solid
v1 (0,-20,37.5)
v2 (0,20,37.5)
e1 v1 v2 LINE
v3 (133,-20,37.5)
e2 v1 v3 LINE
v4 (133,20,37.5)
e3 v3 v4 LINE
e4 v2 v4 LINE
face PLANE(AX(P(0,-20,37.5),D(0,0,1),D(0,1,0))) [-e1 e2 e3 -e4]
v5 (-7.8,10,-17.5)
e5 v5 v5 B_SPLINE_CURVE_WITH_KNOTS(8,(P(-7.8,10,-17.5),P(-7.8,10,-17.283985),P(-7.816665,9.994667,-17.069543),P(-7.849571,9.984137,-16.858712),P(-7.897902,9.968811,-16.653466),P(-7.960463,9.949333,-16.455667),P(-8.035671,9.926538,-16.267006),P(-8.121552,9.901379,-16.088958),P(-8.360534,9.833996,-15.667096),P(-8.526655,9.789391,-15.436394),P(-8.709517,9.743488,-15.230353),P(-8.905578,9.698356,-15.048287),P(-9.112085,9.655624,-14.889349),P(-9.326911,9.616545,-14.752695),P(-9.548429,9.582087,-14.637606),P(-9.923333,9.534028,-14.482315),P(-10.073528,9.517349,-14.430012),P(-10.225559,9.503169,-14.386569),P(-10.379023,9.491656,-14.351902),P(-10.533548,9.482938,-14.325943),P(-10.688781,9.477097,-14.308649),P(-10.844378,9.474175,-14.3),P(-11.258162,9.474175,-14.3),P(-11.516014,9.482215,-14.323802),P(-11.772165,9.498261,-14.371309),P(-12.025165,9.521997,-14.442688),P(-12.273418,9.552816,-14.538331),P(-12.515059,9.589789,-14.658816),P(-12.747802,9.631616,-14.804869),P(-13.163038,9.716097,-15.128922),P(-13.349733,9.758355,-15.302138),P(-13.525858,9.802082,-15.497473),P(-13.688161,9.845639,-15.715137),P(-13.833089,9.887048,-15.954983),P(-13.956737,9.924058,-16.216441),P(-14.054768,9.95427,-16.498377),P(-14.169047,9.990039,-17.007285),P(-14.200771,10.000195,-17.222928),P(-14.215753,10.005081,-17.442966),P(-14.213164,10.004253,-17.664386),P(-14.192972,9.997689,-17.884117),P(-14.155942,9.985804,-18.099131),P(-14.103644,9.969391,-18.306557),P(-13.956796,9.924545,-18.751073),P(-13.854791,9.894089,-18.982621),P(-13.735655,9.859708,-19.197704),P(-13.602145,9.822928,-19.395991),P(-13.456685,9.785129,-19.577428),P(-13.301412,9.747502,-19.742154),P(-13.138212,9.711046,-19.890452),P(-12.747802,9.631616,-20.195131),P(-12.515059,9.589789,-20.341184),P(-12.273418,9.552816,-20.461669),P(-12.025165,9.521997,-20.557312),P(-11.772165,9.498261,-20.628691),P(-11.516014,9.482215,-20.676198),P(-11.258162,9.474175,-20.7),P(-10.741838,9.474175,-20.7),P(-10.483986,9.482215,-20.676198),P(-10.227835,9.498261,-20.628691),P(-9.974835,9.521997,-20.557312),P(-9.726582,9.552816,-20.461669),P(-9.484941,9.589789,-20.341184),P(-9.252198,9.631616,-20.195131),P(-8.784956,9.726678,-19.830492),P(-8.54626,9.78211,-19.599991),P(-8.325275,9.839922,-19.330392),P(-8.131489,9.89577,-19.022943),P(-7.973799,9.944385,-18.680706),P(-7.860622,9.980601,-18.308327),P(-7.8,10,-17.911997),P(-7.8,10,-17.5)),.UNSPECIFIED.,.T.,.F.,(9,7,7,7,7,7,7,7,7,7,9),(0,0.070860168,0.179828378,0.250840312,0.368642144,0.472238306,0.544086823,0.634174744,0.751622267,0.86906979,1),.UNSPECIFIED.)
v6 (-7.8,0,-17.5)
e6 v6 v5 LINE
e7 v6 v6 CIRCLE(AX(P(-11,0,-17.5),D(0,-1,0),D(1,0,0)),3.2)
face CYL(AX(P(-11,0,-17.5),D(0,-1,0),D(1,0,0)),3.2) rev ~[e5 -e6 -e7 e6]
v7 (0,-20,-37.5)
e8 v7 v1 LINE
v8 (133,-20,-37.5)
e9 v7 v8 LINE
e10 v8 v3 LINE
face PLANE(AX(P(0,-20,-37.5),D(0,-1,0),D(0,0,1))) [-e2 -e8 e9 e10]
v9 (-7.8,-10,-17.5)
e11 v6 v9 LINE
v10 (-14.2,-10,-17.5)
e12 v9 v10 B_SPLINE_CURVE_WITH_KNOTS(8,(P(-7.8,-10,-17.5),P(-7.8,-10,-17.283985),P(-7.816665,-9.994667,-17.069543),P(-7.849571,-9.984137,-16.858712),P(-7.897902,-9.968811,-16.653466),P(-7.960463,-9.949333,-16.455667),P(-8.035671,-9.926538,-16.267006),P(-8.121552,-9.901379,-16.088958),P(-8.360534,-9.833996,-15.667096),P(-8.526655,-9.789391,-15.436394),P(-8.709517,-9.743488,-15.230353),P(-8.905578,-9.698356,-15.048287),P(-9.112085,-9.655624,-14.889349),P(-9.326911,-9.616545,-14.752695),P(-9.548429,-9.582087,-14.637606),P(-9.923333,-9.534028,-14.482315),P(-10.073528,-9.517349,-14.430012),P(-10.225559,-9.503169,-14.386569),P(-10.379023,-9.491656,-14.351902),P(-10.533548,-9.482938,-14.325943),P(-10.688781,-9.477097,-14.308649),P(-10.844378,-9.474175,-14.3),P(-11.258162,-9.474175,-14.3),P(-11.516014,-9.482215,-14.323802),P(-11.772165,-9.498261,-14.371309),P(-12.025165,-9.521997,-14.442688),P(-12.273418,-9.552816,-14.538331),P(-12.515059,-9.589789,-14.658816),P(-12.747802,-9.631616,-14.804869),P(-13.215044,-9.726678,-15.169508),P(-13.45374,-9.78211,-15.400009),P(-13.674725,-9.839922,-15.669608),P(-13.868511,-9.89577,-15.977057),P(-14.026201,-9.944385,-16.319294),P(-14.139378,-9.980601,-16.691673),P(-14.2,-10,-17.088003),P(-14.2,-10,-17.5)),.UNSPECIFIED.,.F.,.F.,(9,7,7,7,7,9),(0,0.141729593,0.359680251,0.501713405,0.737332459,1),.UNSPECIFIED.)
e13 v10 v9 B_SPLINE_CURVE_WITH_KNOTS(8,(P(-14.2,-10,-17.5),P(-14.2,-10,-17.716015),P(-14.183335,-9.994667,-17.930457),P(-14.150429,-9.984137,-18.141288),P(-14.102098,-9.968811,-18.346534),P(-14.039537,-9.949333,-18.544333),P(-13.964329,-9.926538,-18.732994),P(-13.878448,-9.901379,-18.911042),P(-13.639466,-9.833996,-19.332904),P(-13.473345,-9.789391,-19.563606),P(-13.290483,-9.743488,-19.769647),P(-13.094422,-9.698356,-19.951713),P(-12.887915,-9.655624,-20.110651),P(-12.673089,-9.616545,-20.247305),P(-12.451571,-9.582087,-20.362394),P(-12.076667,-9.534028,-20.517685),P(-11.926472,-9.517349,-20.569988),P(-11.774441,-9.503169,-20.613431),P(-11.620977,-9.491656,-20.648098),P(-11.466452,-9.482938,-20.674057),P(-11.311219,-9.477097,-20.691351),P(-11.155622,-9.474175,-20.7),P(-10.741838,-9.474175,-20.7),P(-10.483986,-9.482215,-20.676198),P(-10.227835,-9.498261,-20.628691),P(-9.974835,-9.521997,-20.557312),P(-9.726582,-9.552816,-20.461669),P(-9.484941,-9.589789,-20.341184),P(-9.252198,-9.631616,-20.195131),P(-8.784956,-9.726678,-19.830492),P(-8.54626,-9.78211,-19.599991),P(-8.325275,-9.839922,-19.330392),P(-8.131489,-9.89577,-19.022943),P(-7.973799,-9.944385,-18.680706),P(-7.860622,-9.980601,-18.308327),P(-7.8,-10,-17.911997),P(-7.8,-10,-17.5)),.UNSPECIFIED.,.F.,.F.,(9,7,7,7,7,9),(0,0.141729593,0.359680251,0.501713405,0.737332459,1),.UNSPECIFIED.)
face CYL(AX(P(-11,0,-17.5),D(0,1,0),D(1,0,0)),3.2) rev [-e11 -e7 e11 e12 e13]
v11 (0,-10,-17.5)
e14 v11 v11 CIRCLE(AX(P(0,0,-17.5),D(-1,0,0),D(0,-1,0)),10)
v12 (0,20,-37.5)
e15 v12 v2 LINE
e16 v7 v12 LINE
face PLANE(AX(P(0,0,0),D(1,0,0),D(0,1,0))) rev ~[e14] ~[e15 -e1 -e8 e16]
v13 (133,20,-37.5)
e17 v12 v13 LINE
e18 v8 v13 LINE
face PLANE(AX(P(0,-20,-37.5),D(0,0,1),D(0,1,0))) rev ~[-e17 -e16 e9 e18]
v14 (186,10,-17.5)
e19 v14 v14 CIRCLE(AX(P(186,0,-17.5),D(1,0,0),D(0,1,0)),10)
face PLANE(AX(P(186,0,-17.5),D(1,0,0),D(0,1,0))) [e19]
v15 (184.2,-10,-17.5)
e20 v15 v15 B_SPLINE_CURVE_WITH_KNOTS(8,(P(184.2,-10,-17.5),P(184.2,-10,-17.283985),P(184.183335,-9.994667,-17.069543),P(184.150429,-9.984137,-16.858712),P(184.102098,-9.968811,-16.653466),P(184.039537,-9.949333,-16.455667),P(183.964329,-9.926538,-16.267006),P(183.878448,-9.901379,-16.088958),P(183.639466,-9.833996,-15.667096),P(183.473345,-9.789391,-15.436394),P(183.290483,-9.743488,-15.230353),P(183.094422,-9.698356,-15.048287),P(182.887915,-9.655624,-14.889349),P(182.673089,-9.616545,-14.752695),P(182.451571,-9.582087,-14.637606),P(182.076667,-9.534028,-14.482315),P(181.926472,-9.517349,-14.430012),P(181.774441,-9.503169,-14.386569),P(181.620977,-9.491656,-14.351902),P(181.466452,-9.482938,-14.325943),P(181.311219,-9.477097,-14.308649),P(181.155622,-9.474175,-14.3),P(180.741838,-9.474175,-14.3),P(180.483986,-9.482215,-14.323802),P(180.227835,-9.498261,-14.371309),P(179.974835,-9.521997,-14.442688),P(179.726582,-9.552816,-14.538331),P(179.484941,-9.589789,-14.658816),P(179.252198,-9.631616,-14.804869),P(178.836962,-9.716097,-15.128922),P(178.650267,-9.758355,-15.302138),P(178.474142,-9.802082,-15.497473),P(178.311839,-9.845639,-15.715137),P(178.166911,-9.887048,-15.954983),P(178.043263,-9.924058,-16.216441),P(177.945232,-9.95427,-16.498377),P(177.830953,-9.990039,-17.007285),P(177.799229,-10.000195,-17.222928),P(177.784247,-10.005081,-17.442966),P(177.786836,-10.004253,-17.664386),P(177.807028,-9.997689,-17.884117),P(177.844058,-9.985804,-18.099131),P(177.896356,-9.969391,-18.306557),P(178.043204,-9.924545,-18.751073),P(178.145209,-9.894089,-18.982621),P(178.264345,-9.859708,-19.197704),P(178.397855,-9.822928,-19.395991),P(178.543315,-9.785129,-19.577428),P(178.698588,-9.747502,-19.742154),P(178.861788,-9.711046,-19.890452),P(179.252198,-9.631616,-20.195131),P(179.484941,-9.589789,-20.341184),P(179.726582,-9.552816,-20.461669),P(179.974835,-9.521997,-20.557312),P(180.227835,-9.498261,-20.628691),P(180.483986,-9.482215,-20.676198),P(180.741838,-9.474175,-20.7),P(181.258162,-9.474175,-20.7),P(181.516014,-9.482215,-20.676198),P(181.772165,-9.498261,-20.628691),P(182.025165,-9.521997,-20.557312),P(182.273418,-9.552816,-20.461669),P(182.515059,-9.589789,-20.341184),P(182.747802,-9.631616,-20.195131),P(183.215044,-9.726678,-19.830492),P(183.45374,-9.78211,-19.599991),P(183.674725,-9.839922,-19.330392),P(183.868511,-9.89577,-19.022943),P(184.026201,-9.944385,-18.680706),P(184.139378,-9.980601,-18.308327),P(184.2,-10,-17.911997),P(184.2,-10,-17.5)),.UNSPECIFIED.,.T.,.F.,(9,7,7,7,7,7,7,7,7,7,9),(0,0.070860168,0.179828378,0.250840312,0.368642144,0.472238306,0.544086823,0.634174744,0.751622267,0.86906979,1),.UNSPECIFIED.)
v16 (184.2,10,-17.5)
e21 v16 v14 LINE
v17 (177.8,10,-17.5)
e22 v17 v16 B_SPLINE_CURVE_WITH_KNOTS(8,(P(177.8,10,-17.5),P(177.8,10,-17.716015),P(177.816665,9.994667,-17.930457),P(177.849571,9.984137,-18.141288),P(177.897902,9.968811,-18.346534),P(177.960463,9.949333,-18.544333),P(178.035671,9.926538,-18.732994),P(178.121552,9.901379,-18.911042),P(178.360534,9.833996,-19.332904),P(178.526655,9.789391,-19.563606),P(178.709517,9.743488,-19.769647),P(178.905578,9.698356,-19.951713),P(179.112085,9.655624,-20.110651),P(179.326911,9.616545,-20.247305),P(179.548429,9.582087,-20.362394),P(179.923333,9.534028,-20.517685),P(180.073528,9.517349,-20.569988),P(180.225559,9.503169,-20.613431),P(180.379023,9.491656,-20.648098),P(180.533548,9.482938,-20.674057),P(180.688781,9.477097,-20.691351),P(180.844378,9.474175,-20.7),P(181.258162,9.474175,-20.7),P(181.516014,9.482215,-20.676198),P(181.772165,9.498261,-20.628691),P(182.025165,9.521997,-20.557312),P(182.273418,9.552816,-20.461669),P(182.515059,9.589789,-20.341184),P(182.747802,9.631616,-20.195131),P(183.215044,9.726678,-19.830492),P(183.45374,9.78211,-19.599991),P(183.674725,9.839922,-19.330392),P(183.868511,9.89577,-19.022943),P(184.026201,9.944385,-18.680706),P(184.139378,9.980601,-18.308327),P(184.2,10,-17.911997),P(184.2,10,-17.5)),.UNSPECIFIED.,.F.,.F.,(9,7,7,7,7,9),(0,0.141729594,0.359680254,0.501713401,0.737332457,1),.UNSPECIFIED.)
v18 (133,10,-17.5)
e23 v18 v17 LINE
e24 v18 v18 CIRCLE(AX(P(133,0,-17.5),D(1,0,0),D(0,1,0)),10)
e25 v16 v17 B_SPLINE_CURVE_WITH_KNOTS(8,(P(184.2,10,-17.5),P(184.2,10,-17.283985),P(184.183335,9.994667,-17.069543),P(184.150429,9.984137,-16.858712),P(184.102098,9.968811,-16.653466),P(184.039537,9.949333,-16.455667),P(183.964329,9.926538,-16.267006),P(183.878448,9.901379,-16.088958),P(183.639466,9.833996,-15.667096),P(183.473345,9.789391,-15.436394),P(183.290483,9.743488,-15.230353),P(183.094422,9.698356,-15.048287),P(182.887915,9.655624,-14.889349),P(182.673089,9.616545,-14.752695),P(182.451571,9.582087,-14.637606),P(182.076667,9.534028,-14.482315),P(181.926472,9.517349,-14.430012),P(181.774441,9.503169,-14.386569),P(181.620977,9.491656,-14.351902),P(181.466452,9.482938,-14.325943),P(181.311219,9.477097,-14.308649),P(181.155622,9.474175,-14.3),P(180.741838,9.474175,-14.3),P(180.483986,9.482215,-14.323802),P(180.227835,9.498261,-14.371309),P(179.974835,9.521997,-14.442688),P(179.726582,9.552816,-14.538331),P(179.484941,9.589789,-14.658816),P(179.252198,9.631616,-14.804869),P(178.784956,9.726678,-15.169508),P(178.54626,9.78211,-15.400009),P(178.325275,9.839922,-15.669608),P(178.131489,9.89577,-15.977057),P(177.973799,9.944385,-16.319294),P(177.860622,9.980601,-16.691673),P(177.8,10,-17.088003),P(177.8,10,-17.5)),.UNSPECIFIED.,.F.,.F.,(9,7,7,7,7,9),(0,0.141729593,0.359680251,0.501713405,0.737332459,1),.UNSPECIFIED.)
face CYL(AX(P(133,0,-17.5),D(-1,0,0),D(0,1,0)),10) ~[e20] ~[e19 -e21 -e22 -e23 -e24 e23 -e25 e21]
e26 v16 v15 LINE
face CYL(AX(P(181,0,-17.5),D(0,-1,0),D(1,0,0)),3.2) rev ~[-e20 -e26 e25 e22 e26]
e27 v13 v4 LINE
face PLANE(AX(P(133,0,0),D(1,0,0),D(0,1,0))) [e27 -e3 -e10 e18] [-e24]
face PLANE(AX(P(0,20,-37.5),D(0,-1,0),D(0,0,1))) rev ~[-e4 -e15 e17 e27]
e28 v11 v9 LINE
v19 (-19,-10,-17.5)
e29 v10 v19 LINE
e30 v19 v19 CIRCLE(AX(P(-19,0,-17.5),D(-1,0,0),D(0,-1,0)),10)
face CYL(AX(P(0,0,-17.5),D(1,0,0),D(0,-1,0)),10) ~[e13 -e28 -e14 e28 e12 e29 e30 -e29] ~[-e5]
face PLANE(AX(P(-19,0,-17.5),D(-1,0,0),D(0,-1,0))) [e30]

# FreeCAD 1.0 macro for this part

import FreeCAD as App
import Part
import Sketcher
Q = App.Units.Quantity


def add_polygon(sketch, points):
    """Adds a closed chain of lines whose ends are joined by coincident constraints."""
    first, n = sketch.GeometryCount, len(points)
    for a, b in zip(points, points[1:] + points[:1]):
        sketch.addGeometry(Part.LineSegment(App.Vector(*a, 0), App.Vector(*b, 0)), False)
    for i in range(n):
        sketch.addConstraint(Sketcher.Constraint("Coincident", first + i, 2, first + (i + 1) % n, 1))

doc = App.newDocument("Part")
body = doc.addObject("PartDesign::Body", "Body")

# Sketch on YZ plane
sketch1 = body.newObject("Sketcher::SketchObject", "Sketch")
sketch1.AttachmentSupport = (doc.getObject("YZ_Plane"), [""])
sketch1.MapMode = "FlatFace"
add_polygon(sketch1, [(-20, 38), (-20, -38), (20, -38), (20, 38)])  # lines 0-3
sketch1.addConstraint([
    Sketcher.Constraint("Vertical", 0),
    Sketcher.Constraint("Horizontal", 1),
    Sketcher.Constraint("Vertical", 2),
    Sketcher.Constraint("Horizontal", 3),
    Sketcher.Constraint("Symmetric", 0, 2, 2, 2, -1, 1),
    Sketcher.Constraint("DistanceX", 1, 1, 1, 2, Q("40 mm")),
    Sketcher.Constraint("DistanceY", 0, 2, 0, 1, Q("75 mm")),
])
pad1 = body.newObject("PartDesign::Pad", "Pad")
pad1.Profile = sketch1
pad1.Length = 133

# Sketch on YZ plane
sketch2 = body.newObject("Sketcher::SketchObject", "Sketch001")
sketch2.AttachmentSupport = (doc.getObject("YZ_Plane"), [""])
sketch2.MapMode = "FlatFace"
sketch2.addGeometry(Part.Circle(App.Vector(0, -18, 0), App.Vector(0, 0, 1), 10), False)
sketch2.addConstraint([
    Sketcher.Constraint("PointOnObject", 0, 3, -2),
    Sketcher.Constraint("Diameter", 0, Q("20 mm")),
    Sketcher.Constraint("DistanceY", 0, 3, -1, 1, Q("17.5 mm")),
])
pad2 = body.newObject("PartDesign::Pad", "Pad001")
pad2.Profile = sketch2
pad2.Length = 19
pad2.Reversed = True

# Sketch on YZ plane
sketch3 = body.newObject("Sketcher::SketchObject", "Sketch002")
sketch3.AttachmentSupport = (doc.getObject("YZ_Plane"), [""])
sketch3.MapMode = "FlatFace"
sketch3.AttachmentOffset = App.Placement(App.Vector(0, 0, 133), App.Rotation())
sketch3.addGeometry(Part.Circle(App.Vector(0, -18, 0), App.Vector(0, 0, 1), 10), False)
sketch3.addConstraint([
    Sketcher.Constraint("PointOnObject", 0, 3, -2),
    Sketcher.Constraint("Diameter", 0, Q("20 mm")),
    Sketcher.Constraint("DistanceY", 0, 3, -1, 1, Q("17.5 mm")),
])
pad3 = body.newObject("PartDesign::Pad", "Pad002")
pad3.Profile = sketch3
pad3.Length = 53

# Sketch on XZ plane
sketch4 = body.newObject("Sketcher::SketchObject", "Sketch003")
sketch4.AttachmentSupport = (doc.getObject("XZ_Plane"), [""])
sketch4.MapMode = "FlatFace"
sketch4.addGeometry([
    Part.Circle(App.Vector(-11, -17.5, 0), App.Vector(0, 0, 1), 3.2),
    Part.Circle(App.Vector(181, -17.5, 0), App.Vector(0, 0, 1), 3.2),
], False)
sketch4.addConstraint([
    Sketcher.Constraint("Equal", 0, 1),
    Sketcher.Constraint("Horizontal", 0, 3, 1, 3),
    Sketcher.Constraint("Diameter", 0, Q("6.4 mm")),
    Sketcher.Constraint("DistanceX", 0, 3, -1, 1, Q("11 mm")),
    Sketcher.Constraint("DistanceX", -1, 1, 1, 3, Q("181 mm")),
    Sketcher.Constraint("DistanceY", 0, 3, -1, 1, Q("17.5 mm")),
])
pocket1 = body.newObject("PartDesign::Pocket", "Pocket")
pocket1.Profile = sketch4
pocket1.Length = 25
pocket1.Midplane = True

doc.recompute()
